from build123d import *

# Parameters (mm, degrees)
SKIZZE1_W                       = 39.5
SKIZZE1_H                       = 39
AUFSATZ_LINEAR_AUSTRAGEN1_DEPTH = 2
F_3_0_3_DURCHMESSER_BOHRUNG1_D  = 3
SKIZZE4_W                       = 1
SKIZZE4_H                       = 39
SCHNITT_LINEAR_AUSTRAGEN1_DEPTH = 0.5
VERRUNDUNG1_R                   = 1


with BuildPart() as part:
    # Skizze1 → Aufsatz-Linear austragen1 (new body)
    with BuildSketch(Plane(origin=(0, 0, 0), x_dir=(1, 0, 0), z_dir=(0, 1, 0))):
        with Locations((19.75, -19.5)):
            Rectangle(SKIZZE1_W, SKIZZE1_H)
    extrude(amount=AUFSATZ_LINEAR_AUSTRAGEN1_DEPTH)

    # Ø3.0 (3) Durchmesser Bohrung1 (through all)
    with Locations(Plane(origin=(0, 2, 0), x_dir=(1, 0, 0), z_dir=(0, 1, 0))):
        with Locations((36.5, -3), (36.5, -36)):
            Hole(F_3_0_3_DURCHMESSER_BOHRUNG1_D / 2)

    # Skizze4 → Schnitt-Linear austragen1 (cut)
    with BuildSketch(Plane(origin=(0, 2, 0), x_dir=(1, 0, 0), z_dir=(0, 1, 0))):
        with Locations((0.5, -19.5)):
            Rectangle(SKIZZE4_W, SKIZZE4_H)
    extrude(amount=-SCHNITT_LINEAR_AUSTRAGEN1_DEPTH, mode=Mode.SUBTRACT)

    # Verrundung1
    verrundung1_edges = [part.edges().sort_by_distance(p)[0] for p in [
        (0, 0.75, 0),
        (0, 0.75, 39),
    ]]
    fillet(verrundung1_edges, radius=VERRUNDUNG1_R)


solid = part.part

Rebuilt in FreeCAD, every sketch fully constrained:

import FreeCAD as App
import Part
import Sketcher

V = App.Vector


def edges_at(feature, points):
    """Names of the edges that pass closest to the given points."""
    edges = feature.Shape.Edges
    near = lambda p: min(range(len(edges)), key=lambda i: edges[i].distToShape(Part.Vertex(*p))[0])
    return sorted({f"Edge{near(p) + 1}" for p in points})

doc = App.newDocument("Part")
body = doc.addObject("PartDesign::Body", "Body")

# Sketch on XZ plane
sketch1 = body.newObject("Sketcher::SketchObject", "Sketch")
sketch1.AttachmentSupport = (doc.getObject("XZ_Plane"), [""])
sketch1.MapMode = "FlatFace"
sketch1.addGeometry([
    Part.LineSegment(V(0, 0, 0), V(0, 39, 0)),
    Part.LineSegment(V(0, 39, 0), V(40, 39, 0)),
    Part.LineSegment(V(40, 39, 0), V(40, 0, 0)),
    Part.LineSegment(V(40, 0, 0), V(0, 0, 0)),
], False)
sketch1.addConstraint([
    Sketcher.Constraint("Coincident", 0, 2, 1, 1),
    Sketcher.Constraint("Coincident", 1, 2, 2, 1),
    Sketcher.Constraint("Coincident", 2, 2, 3, 1),
    Sketcher.Constraint("Coincident", 3, 2, 0, 1),
    Sketcher.Constraint("Vertical", 0),
    Sketcher.Constraint("Horizontal", 1),
    Sketcher.Constraint("Vertical", 2),
    Sketcher.Constraint("Horizontal", 3),
    Sketcher.Constraint("Coincident", 3, 2, -1, 1),
    Sketcher.Constraint("DistanceY", 0, 1, 0, 2, 39.0),
    Sketcher.Constraint("DistanceX", 1, 1, 1, 2, 39.5),
])
pad1 = body.newObject("PartDesign::Pad", "Pad")
pad1.Profile = sketch1
pad1.Length = 2
pad1.Reversed = True

# Sketch on XZ plane
sketch2 = body.newObject("Sketcher::SketchObject", "Sketch001")
sketch2.AttachmentSupport = (doc.getObject("XZ_Plane"), [""])
sketch2.MapMode = "FlatFace"
sketch2.AttachmentOffset = App.Placement(V(0, 0, -2), App.Rotation())
sketch2.addGeometry([
    Part.Circle(V(36.5, 3, 0), V(0, 0, 1), 1.5),
    Part.Circle(V(36.5, 36, 0), V(0, 0, 1), 1.5),
], False)
sketch2.addConstraint([
    Sketcher.Constraint("Equal", 0, 1),
    Sketcher.Constraint("Vertical", 0, 3, 1, 3),
    Sketcher.Constraint("Diameter", 0, 3.0),
    Sketcher.Constraint("DistanceY", -1, 1, 0, 3, 3.0),
    Sketcher.Constraint("DistanceY", -1, 1, 1, 3, 36.0),
    Sketcher.Constraint("DistanceX", -1, 1, 0, 3, 36.5),
])
doc.recompute()
hole = body.newObject("PartDesign::Hole", "Hole")
hole.Profile = sketch2
hole.ThreadType = "None"
hole.Diameter = 3
hole.DepthType = "ThroughAll"
hole.Reversed = True

# Sketch on XZ plane
sketch3 = body.newObject("Sketcher::SketchObject", "Sketch002")
sketch3.AttachmentSupport = (doc.getObject("XZ_Plane"), [""])
sketch3.MapMode = "FlatFace"
sketch3.AttachmentOffset = App.Placement(V(0, 0, -2), App.Rotation())
sketch3.addGeometry([
    Part.LineSegment(V(0, 0, 0), V(0, 39, 0)),
    Part.LineSegment(V(0, 39, 0), V(1, 39, 0)),
    Part.LineSegment(V(1, 39, 0), V(1, 0, 0)),
    Part.LineSegment(V(1, 0, 0), V(0, 0, 0)),
], False)
sketch3.addConstraint([
    Sketcher.Constraint("Coincident", 0, 2, 1, 1),
    Sketcher.Constraint("Coincident", 1, 2, 2, 1),
    Sketcher.Constraint("Coincident", 2, 2, 3, 1),
    Sketcher.Constraint("Coincident", 3, 2, 0, 1),
    Sketcher.Constraint("Vertical", 0),
    Sketcher.Constraint("Horizontal", 1),
    Sketcher.Constraint("Vertical", 2),
    Sketcher.Constraint("Horizontal", 3),
    Sketcher.Constraint("Coincident", 3, 2, -1, 1),
    Sketcher.Constraint("DistanceX", 1, 1, 1, 2, 1.0),
    Sketcher.Constraint("DistanceY", 0, 1, 0, 2, 39.0),
])
pocket1 = body.newObject("PartDesign::Pocket", "Pocket")
pocket1.Profile = sketch3
pocket1.Length = 0.5
pocket1.Reversed = True
doc.recompute()

fillet = body.newObject("PartDesign::Fillet", "Fillet")
fillet.Base = (pocket1, edges_at(pocket1, [(0, 0.75, 0), (0, 0.75, 39)]))
fillet.Radius = 1

doc.recompute()
